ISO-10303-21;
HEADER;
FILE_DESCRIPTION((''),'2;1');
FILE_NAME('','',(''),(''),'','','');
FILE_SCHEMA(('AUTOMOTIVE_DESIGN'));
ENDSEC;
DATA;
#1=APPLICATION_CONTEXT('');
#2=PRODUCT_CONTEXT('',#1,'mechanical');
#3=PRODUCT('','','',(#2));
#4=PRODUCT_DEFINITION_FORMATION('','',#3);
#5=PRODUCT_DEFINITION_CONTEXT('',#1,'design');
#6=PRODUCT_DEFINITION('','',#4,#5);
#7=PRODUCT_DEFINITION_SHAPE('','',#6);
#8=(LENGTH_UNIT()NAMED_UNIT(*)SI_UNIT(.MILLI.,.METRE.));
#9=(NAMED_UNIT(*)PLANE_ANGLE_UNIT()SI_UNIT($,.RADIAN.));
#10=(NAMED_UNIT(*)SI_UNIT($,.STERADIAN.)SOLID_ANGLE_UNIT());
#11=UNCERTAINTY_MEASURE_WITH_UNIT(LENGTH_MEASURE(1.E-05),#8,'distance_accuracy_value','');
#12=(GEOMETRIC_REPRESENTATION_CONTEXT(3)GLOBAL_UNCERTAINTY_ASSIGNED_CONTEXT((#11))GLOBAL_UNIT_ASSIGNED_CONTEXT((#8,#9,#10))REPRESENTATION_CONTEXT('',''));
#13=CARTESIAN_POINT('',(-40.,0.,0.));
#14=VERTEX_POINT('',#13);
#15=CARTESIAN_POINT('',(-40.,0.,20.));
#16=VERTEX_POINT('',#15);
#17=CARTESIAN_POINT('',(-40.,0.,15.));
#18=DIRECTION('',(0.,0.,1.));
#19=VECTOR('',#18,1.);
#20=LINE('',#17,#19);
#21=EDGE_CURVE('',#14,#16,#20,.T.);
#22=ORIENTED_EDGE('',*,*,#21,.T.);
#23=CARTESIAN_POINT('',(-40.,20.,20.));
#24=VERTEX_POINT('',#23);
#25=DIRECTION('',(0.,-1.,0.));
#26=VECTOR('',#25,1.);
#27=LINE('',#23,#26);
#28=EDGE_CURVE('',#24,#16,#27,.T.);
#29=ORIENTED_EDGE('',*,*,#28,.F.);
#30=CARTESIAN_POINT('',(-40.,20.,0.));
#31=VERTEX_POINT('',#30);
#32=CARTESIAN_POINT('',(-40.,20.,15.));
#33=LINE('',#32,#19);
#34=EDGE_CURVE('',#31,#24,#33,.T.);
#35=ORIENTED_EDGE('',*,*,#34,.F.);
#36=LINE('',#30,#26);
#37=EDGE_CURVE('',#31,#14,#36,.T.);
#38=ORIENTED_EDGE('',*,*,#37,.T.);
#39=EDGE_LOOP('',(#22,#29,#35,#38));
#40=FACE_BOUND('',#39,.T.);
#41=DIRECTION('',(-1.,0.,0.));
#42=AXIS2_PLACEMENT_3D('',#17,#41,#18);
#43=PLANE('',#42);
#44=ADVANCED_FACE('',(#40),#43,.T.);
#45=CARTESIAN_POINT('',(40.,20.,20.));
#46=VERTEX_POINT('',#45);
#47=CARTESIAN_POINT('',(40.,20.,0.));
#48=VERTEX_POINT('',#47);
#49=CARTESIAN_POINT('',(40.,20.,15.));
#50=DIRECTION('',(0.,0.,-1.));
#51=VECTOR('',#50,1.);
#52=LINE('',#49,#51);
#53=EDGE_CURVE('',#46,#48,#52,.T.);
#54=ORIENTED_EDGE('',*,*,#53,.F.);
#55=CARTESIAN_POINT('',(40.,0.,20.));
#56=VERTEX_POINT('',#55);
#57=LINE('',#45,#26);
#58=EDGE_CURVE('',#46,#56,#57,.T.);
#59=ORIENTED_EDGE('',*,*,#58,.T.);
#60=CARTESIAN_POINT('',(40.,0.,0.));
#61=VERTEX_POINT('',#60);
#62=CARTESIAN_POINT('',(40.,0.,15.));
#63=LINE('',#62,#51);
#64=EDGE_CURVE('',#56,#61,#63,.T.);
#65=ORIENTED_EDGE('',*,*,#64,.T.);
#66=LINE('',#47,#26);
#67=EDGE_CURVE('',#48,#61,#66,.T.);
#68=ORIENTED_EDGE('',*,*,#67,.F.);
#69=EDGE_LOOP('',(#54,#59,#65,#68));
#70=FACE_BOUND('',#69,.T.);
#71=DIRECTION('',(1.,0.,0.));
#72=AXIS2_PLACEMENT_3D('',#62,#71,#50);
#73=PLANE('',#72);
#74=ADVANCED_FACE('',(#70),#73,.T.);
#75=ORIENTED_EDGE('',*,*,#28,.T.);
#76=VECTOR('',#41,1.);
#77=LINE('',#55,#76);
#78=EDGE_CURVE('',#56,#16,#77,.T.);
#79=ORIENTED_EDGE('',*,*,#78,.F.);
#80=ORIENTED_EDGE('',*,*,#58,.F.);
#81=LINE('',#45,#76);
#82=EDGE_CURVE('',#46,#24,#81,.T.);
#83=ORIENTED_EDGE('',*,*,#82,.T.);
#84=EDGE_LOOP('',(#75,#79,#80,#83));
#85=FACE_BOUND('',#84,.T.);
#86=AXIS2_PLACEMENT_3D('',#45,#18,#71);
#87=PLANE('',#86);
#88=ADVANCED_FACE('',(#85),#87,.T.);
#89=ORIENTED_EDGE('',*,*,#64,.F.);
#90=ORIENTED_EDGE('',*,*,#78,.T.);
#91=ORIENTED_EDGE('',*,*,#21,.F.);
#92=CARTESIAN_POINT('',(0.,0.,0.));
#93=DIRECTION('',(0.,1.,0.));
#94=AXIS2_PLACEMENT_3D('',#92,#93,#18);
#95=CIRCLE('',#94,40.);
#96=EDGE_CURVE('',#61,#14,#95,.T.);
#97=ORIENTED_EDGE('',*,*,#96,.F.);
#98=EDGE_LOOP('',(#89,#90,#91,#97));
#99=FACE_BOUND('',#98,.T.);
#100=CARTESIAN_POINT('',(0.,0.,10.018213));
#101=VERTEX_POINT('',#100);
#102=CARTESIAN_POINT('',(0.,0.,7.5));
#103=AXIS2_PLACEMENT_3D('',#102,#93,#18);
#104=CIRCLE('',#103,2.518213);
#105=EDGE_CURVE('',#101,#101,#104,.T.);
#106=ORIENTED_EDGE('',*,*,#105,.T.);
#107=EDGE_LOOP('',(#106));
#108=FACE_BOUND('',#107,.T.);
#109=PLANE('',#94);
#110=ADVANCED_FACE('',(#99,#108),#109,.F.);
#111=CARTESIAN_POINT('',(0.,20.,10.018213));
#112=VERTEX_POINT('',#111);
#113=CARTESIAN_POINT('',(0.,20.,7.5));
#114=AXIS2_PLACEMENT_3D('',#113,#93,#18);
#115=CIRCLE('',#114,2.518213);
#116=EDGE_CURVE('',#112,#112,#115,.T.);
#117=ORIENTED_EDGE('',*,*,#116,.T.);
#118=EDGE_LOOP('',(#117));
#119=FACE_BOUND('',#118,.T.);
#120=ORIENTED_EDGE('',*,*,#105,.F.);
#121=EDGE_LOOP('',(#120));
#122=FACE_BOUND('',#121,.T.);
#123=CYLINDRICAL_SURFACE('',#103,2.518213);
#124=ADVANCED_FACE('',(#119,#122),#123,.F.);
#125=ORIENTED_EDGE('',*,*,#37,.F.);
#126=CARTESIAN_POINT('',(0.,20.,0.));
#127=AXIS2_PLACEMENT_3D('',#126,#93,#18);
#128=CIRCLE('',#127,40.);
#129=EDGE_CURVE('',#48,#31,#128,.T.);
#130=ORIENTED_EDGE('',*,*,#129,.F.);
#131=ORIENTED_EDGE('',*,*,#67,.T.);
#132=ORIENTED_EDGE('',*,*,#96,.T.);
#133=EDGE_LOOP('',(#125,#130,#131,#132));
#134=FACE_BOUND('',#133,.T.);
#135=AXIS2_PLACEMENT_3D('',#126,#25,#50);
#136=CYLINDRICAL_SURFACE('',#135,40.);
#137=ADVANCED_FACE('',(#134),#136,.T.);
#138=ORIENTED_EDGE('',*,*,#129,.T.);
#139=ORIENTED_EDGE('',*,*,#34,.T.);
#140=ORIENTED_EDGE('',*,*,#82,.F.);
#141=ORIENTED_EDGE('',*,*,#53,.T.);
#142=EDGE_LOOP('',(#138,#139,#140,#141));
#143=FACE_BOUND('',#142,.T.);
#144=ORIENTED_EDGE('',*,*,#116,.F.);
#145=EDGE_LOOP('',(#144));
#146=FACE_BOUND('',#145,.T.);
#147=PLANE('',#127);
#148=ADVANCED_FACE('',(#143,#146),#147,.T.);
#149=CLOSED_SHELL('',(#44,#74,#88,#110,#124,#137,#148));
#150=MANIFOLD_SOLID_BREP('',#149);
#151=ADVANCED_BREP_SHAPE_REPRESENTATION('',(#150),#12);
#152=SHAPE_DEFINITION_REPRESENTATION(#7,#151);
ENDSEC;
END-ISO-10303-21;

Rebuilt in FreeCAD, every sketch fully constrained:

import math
import FreeCAD as App
import Part
import Sketcher
from FreeCAD import Vector


def add_polygon(sketch, points):
    """Adds a closed chain of lines whose ends are joined by coincident constraints."""
    first, n = sketch.GeometryCount, len(points)
    for a, b in zip(points, points[1:] + points[:1]):
        sketch.addGeometry(Part.LineSegment(App.Vector(*a, 0), App.Vector(*b, 0)), False)
    for i in range(n):
        sketch.addConstraint(Sketcher.Constraint("Coincident", first + i, 2, first + (i + 1) % n, 1))

doc = App.newDocument("Part")
params = doc.addObject("Spreadsheet::Sheet", "Params")
for row, (alias, value) in enumerate([
    ("sketch1_radius", "40 mm"),
    ("pad1_length", "20 mm"),
    ("sketch2_width", "80 mm"),
    ("sketch2_height", "15 mm"),
    ("pad2_length", "20 mm"),
    ("sketch3_diameter", "3.5 mm"),
    ("pocket1_length", "20 mm"),
    ("sketch4_width", "80 mm"),
    ("sketch4_height", "5 mm"),
    ("pad3_length", "20 mm"),
    ("pocket2_length", "20 mm"),
], start=1):
    params.set(f"A{row}", alias)
    params.set(f"B{row}", "=" + value)
    params.setAlias(f"B{row}", alias)

body = doc.addObject("PartDesign::Body", "Body")

sketch1 = doc.addObject("Sketcher::SketchObject", "Sketch")
body.addObject(sketch1)
sketch1.AttachmentSupport = (doc.XZ_Plane, [""])
sketch1.MapMode = "FlatFace"
sketch1.addGeometry([
    Part.LineSegment(Vector(-40, 0, 0), Vector(40, 0, 0)),
    Part.ArcOfCircle(Part.Circle(Vector(0, 0, 0), Vector(0, 0, 1), 40), math.radians(180), math.radians(360)),
], False)
sketch1.addConstraint([
    Sketcher.Constraint("Coincident", 0, 1, 1, 1),
    Sketcher.Constraint("Coincident", 1, 2, 0, 2),
    Sketcher.Constraint("Horizontal", 0),
    Sketcher.Constraint("Coincident", 1, 3, -1, 1),
    Sketcher.Constraint("PointOnObject", 0, 1, -1),
    Sketcher.Constraint("Radius", 1, 40.0),
])
sketch1.setExpression("Constraints[5]", "Params.sketch1_radius")
pad1 = doc.addObject("PartDesign::Pad", "Pad")
body.addObject(pad1)
pad1.Profile = sketch1
pad1.setExpression("Length", "Params.pad1_length")
pad1.Reversed = True

sketch2 = doc.addObject("Sketcher::SketchObject", "Sketch001")
body.addObject(sketch2)
sketch2.AttachmentSupport = (doc.XZ_Plane, [""])
sketch2.MapMode = "FlatFace"
sketch2.AttachmentOffset = App.Placement(Vector(0, 0, -20), App.Rotation())
add_polygon(sketch2, [(-40, 0), (-40, 15), (40, 15), (40, 0)])
sketch2.addConstraint([
    Sketcher.Constraint("Vertical", 0),
    Sketcher.Constraint("Horizontal", 1),
    Sketcher.Constraint("Vertical", 2),
    Sketcher.Constraint("Horizontal", 3),
    Sketcher.Constraint("Symmetric", 2, 2, 3, 2, -1, 1),
    Sketcher.Constraint("DistanceX", 1, 1, 1, 2, 80.0),
    Sketcher.Constraint("DistanceY", 0, 1, 0, 2, 15.0),
])
sketch2.setExpression("Constraints[9]", "Params.sketch2_width")
sketch2.setExpression("Constraints[10]", "Params.sketch2_height")
pad2 = doc.addObject("PartDesign::Pad", "Pad001")
body.addObject(pad2)
pad2.Profile = sketch2
pad2.setExpression("Length", "Params.pad2_length")

sketch3 = doc.addObject("Sketcher::SketchObject", "Sketch002")
body.addObject(sketch3)
sketch3.AttachmentSupport = (doc.XZ_Plane, [""])
sketch3.MapMode = "FlatFace"
sketch3.addGeometry(Part.Circle(Vector(0, 7.5, 0), Vector(0, 0, 1), 1.75), False)
sketch3.addConstraint([
    Sketcher.Constraint("PointOnObject", 0, 3, -2),
    Sketcher.Constraint("Diameter", 0, 3.5),
    Sketcher.Constraint("DistanceY", -1, 1, 0, 3, 7.5),
])
sketch3.setExpression("Constraints[1]", "Params.sketch3_diameter")
pocket1 = doc.addObject("PartDesign::Pocket", "Pocket")
body.addObject(pocket1)
pocket1.Profile = sketch3
pocket1.setExpression("Length", "Params.pocket1_length")

sketch4 = doc.addObject("Sketcher::SketchObject", "Sketch003")
body.addObject(sketch4)
sketch4.AttachmentSupport = (doc.XZ_Plane, [""])
sketch4.MapMode = "FlatFace"
add_polygon(sketch4, [(40, 15), (40, 20), (-40, 20), (-40, 15)])
sketch4.addConstraint([
    Sketcher.Constraint("Vertical", 0),
    Sketcher.Constraint("Horizontal", 1),
    Sketcher.Constraint("Vertical", 2),
    Sketcher.Constraint("Horizontal", 3),
    Sketcher.Constraint("DistanceX", 1, 2, 1, 1, 80.0),
    Sketcher.Constraint("DistanceY", 0, 1, 0, 2, 5.0),
    Sketcher.Constraint("DistanceX", -1, 1, 0, 2, 40.0),
    Sketcher.Constraint("DistanceY", -1, 1, 0, 2, 20.0),
])
sketch4.setExpression("Constraints[8]", "Params.sketch4_width")
sketch4.setExpression("Constraints[9]", "Params.sketch4_height")
pad3 = doc.addObject("PartDesign::Pad", "Pad002")
body.addObject(pad3)
pad3.Profile = sketch4
pad3.setExpression("Length", "Params.pad3_length")
pad3.Reversed = True

sketch5 = doc.addObject("Sketcher::SketchObject", "Sketch004")
body.addObject(sketch5)
sketch5.AttachmentSupport = (doc.XZ_Plane, [""])
sketch5.MapMode = "FlatFace"
sketch5.AttachmentOffset = App.Placement(Vector(0, 0, -20), App.Rotation())
sketch5.addGeometry(Part.Circle(Vector(0, 7.5, 0), Vector(0, 0, 1), 2.518213), False)
sketch5.addConstraint([
    Sketcher.Constraint("PointOnObject", 0, 3, -2),
    Sketcher.Constraint("DistanceY", -1, 1, 0, 3, 7.5),
    Sketcher.Constraint("Diameter", 0, 5.036427),
])
pocket2 = doc.addObject("PartDesign::Pocket", "Pocket001")
body.addObject(pocket2)
pocket2.Profile = sketch5
pocket2.setExpression("Length", "Params.pocket2_length")
pocket2.Reversed = True

doc.recompute()
